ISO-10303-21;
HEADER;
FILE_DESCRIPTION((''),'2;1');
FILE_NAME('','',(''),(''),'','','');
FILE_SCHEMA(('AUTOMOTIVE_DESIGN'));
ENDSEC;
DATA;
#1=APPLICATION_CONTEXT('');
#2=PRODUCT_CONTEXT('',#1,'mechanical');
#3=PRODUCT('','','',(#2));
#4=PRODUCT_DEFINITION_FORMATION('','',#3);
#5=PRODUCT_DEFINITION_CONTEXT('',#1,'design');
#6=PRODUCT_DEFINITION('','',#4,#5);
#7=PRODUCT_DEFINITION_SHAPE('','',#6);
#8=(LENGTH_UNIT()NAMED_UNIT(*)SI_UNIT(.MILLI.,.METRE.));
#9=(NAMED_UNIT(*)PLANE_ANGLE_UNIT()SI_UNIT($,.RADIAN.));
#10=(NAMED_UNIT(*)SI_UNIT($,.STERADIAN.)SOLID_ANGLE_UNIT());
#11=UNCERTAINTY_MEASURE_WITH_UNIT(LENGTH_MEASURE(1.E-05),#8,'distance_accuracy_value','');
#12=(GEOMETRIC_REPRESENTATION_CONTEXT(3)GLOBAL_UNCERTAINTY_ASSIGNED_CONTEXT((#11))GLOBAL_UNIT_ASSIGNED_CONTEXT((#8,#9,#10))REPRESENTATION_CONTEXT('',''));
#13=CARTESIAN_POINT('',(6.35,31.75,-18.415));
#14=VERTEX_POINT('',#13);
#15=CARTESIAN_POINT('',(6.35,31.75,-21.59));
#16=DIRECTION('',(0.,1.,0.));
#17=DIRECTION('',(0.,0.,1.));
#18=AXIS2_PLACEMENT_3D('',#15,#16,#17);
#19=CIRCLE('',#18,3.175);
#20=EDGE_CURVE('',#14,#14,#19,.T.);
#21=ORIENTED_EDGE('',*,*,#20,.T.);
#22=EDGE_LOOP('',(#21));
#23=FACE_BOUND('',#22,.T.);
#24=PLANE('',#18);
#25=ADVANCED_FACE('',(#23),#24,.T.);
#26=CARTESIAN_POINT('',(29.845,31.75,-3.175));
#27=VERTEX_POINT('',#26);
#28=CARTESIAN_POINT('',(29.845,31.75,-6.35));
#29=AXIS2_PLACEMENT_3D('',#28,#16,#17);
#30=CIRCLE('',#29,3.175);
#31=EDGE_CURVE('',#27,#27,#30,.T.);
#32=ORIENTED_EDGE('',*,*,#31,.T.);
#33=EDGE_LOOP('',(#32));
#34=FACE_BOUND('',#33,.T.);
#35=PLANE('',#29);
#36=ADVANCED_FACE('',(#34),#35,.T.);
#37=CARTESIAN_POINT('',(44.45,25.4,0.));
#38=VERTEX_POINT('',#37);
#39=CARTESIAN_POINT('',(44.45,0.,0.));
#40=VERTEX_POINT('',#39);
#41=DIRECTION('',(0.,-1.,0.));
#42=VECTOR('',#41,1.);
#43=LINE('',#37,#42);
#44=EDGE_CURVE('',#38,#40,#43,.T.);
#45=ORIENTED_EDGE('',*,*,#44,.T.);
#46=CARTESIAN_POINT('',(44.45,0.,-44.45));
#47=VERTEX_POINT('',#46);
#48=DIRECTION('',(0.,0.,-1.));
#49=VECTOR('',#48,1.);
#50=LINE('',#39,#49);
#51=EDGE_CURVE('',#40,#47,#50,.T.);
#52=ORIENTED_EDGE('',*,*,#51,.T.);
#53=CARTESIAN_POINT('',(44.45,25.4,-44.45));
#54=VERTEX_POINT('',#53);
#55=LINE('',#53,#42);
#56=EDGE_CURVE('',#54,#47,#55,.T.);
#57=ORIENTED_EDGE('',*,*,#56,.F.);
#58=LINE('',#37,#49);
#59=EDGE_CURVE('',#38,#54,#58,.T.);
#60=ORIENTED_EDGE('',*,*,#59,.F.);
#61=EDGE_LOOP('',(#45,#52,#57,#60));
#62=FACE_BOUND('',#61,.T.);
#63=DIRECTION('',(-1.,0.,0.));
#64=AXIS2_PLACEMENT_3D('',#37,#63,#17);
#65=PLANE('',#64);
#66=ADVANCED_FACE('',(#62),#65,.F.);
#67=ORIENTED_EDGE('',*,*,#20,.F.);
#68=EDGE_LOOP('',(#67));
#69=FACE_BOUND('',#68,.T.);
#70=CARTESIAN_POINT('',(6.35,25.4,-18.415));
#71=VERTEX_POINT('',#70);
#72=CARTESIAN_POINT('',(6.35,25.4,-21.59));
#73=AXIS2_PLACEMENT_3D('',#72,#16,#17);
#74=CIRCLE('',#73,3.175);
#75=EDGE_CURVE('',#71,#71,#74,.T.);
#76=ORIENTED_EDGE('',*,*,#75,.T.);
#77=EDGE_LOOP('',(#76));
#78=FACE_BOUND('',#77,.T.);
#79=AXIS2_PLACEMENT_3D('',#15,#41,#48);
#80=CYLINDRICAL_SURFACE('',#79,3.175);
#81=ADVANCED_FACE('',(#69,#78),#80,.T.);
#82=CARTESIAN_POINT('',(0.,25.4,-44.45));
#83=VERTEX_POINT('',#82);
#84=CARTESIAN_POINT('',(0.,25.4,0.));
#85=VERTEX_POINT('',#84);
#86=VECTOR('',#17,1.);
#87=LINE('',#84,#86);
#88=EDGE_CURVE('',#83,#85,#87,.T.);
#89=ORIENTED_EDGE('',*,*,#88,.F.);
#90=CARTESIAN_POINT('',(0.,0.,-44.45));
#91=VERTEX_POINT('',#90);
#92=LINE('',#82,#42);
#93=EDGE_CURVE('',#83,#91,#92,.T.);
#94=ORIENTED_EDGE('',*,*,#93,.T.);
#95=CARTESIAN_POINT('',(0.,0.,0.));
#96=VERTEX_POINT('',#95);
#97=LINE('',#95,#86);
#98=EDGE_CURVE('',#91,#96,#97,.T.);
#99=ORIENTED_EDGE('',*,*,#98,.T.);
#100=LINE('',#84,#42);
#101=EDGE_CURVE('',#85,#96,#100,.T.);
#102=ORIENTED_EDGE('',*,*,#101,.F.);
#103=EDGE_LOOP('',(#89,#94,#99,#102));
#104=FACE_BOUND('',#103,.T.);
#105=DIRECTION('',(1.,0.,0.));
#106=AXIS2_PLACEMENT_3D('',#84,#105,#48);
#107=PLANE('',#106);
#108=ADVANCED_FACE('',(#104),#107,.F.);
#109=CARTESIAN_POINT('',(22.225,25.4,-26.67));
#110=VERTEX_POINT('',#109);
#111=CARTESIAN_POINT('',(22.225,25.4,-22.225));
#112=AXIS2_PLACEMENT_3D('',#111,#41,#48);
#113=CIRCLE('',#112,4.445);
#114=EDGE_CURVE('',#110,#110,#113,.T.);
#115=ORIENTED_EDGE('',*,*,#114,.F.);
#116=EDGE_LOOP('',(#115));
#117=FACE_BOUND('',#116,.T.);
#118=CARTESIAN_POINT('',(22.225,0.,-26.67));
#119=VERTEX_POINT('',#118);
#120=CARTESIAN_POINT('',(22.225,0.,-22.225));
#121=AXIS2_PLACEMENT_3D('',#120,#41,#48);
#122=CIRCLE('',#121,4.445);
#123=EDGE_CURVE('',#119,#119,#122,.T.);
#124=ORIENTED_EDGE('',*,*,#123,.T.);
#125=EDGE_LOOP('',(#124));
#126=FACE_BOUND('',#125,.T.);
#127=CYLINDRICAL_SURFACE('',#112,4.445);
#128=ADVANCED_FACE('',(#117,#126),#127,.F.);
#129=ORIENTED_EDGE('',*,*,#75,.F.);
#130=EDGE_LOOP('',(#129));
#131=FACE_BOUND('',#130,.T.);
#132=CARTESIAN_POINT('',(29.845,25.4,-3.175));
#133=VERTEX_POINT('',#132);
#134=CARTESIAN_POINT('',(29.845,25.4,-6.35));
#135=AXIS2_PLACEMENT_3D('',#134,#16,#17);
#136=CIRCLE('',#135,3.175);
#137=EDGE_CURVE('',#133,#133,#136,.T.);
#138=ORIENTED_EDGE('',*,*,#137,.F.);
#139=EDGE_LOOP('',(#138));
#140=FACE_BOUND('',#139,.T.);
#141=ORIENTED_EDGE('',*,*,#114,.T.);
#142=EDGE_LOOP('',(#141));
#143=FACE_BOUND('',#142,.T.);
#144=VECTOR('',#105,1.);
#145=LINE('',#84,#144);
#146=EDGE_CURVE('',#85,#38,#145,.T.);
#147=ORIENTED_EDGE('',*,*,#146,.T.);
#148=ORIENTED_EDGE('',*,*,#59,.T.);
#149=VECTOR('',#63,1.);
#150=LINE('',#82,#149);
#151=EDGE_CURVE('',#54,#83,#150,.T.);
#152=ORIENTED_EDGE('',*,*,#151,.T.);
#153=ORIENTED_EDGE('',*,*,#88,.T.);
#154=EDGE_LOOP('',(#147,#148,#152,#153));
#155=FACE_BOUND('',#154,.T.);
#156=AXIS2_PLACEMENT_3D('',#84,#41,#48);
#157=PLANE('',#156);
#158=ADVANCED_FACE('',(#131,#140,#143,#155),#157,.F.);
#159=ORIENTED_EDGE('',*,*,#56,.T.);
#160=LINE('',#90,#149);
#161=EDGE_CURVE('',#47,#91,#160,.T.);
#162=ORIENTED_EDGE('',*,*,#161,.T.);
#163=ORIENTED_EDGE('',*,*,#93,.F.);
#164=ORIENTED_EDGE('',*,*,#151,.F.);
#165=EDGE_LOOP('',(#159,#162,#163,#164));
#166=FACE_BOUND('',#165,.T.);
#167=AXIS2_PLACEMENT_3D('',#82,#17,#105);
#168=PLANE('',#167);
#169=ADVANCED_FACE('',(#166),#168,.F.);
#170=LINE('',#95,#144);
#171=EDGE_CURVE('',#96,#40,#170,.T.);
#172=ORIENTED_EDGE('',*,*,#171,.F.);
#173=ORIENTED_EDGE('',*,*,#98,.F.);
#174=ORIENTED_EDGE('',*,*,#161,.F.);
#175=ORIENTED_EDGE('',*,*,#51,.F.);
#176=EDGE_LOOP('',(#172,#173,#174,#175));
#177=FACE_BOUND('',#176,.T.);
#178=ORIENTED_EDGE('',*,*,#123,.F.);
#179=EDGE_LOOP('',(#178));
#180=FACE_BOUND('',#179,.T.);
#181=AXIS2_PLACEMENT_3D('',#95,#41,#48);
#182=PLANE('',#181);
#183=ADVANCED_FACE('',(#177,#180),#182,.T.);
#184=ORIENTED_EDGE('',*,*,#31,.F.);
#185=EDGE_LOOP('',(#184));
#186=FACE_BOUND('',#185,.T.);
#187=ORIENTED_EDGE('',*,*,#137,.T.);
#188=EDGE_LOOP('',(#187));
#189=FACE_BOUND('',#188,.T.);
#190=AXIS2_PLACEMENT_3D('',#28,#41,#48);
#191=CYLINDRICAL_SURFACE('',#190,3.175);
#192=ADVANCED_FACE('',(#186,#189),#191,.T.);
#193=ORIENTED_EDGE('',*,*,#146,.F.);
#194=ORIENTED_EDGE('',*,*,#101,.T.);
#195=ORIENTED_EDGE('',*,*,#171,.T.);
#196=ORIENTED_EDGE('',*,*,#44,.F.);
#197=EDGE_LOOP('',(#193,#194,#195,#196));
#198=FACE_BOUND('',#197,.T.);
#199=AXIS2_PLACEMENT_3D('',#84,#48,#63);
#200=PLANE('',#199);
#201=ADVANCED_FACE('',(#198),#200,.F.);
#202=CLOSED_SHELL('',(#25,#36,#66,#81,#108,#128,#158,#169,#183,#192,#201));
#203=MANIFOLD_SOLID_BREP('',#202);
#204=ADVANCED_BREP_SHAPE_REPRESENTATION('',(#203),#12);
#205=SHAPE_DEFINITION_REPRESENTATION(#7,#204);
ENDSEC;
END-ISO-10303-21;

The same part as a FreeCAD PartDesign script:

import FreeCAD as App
import Part
import Sketcher
from FreeCAD import Vector
Q = App.Units.Quantity

doc = App.newDocument("Part")
params = doc.addObject("Spreadsheet::Sheet", "Params")
for row, (alias, value) in enumerate([
    ("sketch1_width", "1.75 in"),
    ("pad1_length", "1 in"),
    ("sketch2_diameter", "0.25 in"),
    ("pad2_length", "0.25 in"),
    ("sketch3_diameter", "0.191 in"),
    ("pocket1_length", "1 in"),
    ("sketch4_diameter", "0.35 in"),
    ("pocket2_length", "1 in"),
], start=1):
    params.set(f"A{row}", alias)
    params.set(f"B{row}", "=" + value)
    params.setAlias(f"B{row}", alias)

body = doc.addObject("PartDesign::Body", "Body")

sketch1 = body.newObject("Sketcher::SketchObject", "Sketch")
sketch1.AttachmentSupport = (doc.getObject("XZ_Plane"), [""])
sketch1.MapMode = "FlatFace"
sketch1.addGeometry(Part.LineSegment(Vector(0, -44, 0), Vector(0, 0, 0)), False)
sketch1.addGeometry(Part.LineSegment(Vector(0, 0, 0), Vector(44, 0, 0)), False)
sketch1.addGeometry(Part.LineSegment(Vector(44, 0, 0), Vector(44, -44, 0)), False)
sketch1.addGeometry(Part.LineSegment(Vector(44, -44, 0), Vector(0, -44, 0)), False)
sketch1.addConstraint(Sketcher.Constraint("Coincident", 0, 2, 1, 1))
sketch1.addConstraint(Sketcher.Constraint("Coincident", 1, 2, 2, 1))
sketch1.addConstraint(Sketcher.Constraint("Coincident", 2, 2, 3, 1))
sketch1.addConstraint(Sketcher.Constraint("Coincident", 3, 2, 0, 1))
sketch1.addConstraint(Sketcher.Constraint("Vertical", 0))
sketch1.addConstraint(Sketcher.Constraint("Horizontal", 1))
sketch1.addConstraint(Sketcher.Constraint("Vertical", 2))
sketch1.addConstraint(Sketcher.Constraint("Horizontal", 3))
sketch1.addConstraint(Sketcher.Constraint("Coincident", 0, 2, -1, 1))
sketch1.addConstraint(Sketcher.Constraint("Equal", 3, 0))
sketch1.addConstraint(Sketcher.Constraint("DistanceX", 1, 1, 1, 2, Q("1.75 in")))
sketch1.setExpression("Constraints[10]", "Params.sketch1_width")
pad1 = body.newObject("PartDesign::Pad", "Pad")
pad1.Profile = sketch1
pad1.setExpression("Length", "Params.pad1_length")
pad1.Reversed = True

sketch2 = body.newObject("Sketcher::SketchObject", "Sketch001")
sketch2.AttachmentSupport = (doc.getObject("XZ_Plane"), [""])
sketch2.MapMode = "FlatFace"
sketch2.AttachmentOffset = App.Placement(Vector(0, 0, -1 * 25.4), App.Rotation())
sketch2.addGeometry(Part.Circle(Vector(6.3, -21.6, 0), Vector(0, 0, 1), 3.2), False)
sketch2.addGeometry(Part.Circle(Vector(29.8, -6.3, 0), Vector(0, 0, 1), 3.2), False)
sketch2.addConstraint(Sketcher.Constraint("Equal", 0, 1))
sketch2.addConstraint(Sketcher.Constraint("Diameter", 0, Q("0.25 in")))
sketch2.addConstraint(Sketcher.Constraint("DistanceY", 0, 3, 1, 3, Q("0.6 in")))
sketch2.addConstraint(Sketcher.Constraint("DistanceX", -1, 1, 0, 3, Q("0.25 in")))
sketch2.addConstraint(Sketcher.Constraint("DistanceY", 0, 3, -1, 1, Q("0.85 in")))
sketch2.addConstraint(Sketcher.Constraint("DistanceX", -1, 1, 1, 3, Q("1.175 in")))
sketch2.setExpression("Constraints[1]", "Params.sketch2_diameter")
pad2 = body.newObject("PartDesign::Pad", "Pad001")
pad2.Profile = sketch2
pad2.setExpression("Length", "Params.pad2_length")
pad2.Reversed = True

sketch3 = body.newObject("Sketcher::SketchObject", "Sketch002")
sketch3.AttachmentSupport = (doc.getObject("XZ_Plane"), [""])
sketch3.MapMode = "FlatFace"
sketch3.AttachmentOffset = App.Placement(Vector(0, 0, -1 * 25.4), App.Rotation())
sketch3.addGeometry(Part.Circle(Vector(22.2, -22.2, 0), Vector(0, 0, 1), 2.4), False)
sketch3.addConstraint(Sketcher.Constraint("Diameter", 0, Q("0.191 in")))
sketch3.addConstraint(Sketcher.Constraint("DistanceX", -1, 1, 0, 3, Q("0.875 in")))
sketch3.addConstraint(Sketcher.Constraint("DistanceY", 0, 3, -1, 1, Q("0.875 in")))
sketch3.setExpression("Constraints[0]", "Params.sketch3_diameter")
pocket1 = body.newObject("PartDesign::Pocket", "Pocket")
pocket1.Profile = sketch3
pocket1.setExpression("Length", "Params.pocket1_length")
pocket1.Reversed = True

sketch4 = body.newObject("Sketcher::SketchObject", "Sketch003")
sketch4.AttachmentSupport = (doc.getObject("XZ_Plane"), [""])
sketch4.MapMode = "FlatFace"
sketch4.addGeometry(Part.Circle(Vector(22.2, -22.2, 0), Vector(0, 0, 1), 4.4), False)
sketch4.addConstraint(Sketcher.Constraint("Diameter", 0, Q("0.35 in")))
sketch4.addConstraint(Sketcher.Constraint("DistanceX", -1, 1, 0, 3, Q("0.875 in")))
sketch4.addConstraint(Sketcher.Constraint("DistanceY", 0, 3, -1, 1, Q("0.875 in")))
sketch4.setExpression("Constraints[0]", "Params.sketch4_diameter")
pocket2 = body.newObject("PartDesign::Pocket", "Pocket001")
pocket2.Profile = sketch4
pocket2.setExpression("Length", "Params.pocket2_length")

doc.recompute()
